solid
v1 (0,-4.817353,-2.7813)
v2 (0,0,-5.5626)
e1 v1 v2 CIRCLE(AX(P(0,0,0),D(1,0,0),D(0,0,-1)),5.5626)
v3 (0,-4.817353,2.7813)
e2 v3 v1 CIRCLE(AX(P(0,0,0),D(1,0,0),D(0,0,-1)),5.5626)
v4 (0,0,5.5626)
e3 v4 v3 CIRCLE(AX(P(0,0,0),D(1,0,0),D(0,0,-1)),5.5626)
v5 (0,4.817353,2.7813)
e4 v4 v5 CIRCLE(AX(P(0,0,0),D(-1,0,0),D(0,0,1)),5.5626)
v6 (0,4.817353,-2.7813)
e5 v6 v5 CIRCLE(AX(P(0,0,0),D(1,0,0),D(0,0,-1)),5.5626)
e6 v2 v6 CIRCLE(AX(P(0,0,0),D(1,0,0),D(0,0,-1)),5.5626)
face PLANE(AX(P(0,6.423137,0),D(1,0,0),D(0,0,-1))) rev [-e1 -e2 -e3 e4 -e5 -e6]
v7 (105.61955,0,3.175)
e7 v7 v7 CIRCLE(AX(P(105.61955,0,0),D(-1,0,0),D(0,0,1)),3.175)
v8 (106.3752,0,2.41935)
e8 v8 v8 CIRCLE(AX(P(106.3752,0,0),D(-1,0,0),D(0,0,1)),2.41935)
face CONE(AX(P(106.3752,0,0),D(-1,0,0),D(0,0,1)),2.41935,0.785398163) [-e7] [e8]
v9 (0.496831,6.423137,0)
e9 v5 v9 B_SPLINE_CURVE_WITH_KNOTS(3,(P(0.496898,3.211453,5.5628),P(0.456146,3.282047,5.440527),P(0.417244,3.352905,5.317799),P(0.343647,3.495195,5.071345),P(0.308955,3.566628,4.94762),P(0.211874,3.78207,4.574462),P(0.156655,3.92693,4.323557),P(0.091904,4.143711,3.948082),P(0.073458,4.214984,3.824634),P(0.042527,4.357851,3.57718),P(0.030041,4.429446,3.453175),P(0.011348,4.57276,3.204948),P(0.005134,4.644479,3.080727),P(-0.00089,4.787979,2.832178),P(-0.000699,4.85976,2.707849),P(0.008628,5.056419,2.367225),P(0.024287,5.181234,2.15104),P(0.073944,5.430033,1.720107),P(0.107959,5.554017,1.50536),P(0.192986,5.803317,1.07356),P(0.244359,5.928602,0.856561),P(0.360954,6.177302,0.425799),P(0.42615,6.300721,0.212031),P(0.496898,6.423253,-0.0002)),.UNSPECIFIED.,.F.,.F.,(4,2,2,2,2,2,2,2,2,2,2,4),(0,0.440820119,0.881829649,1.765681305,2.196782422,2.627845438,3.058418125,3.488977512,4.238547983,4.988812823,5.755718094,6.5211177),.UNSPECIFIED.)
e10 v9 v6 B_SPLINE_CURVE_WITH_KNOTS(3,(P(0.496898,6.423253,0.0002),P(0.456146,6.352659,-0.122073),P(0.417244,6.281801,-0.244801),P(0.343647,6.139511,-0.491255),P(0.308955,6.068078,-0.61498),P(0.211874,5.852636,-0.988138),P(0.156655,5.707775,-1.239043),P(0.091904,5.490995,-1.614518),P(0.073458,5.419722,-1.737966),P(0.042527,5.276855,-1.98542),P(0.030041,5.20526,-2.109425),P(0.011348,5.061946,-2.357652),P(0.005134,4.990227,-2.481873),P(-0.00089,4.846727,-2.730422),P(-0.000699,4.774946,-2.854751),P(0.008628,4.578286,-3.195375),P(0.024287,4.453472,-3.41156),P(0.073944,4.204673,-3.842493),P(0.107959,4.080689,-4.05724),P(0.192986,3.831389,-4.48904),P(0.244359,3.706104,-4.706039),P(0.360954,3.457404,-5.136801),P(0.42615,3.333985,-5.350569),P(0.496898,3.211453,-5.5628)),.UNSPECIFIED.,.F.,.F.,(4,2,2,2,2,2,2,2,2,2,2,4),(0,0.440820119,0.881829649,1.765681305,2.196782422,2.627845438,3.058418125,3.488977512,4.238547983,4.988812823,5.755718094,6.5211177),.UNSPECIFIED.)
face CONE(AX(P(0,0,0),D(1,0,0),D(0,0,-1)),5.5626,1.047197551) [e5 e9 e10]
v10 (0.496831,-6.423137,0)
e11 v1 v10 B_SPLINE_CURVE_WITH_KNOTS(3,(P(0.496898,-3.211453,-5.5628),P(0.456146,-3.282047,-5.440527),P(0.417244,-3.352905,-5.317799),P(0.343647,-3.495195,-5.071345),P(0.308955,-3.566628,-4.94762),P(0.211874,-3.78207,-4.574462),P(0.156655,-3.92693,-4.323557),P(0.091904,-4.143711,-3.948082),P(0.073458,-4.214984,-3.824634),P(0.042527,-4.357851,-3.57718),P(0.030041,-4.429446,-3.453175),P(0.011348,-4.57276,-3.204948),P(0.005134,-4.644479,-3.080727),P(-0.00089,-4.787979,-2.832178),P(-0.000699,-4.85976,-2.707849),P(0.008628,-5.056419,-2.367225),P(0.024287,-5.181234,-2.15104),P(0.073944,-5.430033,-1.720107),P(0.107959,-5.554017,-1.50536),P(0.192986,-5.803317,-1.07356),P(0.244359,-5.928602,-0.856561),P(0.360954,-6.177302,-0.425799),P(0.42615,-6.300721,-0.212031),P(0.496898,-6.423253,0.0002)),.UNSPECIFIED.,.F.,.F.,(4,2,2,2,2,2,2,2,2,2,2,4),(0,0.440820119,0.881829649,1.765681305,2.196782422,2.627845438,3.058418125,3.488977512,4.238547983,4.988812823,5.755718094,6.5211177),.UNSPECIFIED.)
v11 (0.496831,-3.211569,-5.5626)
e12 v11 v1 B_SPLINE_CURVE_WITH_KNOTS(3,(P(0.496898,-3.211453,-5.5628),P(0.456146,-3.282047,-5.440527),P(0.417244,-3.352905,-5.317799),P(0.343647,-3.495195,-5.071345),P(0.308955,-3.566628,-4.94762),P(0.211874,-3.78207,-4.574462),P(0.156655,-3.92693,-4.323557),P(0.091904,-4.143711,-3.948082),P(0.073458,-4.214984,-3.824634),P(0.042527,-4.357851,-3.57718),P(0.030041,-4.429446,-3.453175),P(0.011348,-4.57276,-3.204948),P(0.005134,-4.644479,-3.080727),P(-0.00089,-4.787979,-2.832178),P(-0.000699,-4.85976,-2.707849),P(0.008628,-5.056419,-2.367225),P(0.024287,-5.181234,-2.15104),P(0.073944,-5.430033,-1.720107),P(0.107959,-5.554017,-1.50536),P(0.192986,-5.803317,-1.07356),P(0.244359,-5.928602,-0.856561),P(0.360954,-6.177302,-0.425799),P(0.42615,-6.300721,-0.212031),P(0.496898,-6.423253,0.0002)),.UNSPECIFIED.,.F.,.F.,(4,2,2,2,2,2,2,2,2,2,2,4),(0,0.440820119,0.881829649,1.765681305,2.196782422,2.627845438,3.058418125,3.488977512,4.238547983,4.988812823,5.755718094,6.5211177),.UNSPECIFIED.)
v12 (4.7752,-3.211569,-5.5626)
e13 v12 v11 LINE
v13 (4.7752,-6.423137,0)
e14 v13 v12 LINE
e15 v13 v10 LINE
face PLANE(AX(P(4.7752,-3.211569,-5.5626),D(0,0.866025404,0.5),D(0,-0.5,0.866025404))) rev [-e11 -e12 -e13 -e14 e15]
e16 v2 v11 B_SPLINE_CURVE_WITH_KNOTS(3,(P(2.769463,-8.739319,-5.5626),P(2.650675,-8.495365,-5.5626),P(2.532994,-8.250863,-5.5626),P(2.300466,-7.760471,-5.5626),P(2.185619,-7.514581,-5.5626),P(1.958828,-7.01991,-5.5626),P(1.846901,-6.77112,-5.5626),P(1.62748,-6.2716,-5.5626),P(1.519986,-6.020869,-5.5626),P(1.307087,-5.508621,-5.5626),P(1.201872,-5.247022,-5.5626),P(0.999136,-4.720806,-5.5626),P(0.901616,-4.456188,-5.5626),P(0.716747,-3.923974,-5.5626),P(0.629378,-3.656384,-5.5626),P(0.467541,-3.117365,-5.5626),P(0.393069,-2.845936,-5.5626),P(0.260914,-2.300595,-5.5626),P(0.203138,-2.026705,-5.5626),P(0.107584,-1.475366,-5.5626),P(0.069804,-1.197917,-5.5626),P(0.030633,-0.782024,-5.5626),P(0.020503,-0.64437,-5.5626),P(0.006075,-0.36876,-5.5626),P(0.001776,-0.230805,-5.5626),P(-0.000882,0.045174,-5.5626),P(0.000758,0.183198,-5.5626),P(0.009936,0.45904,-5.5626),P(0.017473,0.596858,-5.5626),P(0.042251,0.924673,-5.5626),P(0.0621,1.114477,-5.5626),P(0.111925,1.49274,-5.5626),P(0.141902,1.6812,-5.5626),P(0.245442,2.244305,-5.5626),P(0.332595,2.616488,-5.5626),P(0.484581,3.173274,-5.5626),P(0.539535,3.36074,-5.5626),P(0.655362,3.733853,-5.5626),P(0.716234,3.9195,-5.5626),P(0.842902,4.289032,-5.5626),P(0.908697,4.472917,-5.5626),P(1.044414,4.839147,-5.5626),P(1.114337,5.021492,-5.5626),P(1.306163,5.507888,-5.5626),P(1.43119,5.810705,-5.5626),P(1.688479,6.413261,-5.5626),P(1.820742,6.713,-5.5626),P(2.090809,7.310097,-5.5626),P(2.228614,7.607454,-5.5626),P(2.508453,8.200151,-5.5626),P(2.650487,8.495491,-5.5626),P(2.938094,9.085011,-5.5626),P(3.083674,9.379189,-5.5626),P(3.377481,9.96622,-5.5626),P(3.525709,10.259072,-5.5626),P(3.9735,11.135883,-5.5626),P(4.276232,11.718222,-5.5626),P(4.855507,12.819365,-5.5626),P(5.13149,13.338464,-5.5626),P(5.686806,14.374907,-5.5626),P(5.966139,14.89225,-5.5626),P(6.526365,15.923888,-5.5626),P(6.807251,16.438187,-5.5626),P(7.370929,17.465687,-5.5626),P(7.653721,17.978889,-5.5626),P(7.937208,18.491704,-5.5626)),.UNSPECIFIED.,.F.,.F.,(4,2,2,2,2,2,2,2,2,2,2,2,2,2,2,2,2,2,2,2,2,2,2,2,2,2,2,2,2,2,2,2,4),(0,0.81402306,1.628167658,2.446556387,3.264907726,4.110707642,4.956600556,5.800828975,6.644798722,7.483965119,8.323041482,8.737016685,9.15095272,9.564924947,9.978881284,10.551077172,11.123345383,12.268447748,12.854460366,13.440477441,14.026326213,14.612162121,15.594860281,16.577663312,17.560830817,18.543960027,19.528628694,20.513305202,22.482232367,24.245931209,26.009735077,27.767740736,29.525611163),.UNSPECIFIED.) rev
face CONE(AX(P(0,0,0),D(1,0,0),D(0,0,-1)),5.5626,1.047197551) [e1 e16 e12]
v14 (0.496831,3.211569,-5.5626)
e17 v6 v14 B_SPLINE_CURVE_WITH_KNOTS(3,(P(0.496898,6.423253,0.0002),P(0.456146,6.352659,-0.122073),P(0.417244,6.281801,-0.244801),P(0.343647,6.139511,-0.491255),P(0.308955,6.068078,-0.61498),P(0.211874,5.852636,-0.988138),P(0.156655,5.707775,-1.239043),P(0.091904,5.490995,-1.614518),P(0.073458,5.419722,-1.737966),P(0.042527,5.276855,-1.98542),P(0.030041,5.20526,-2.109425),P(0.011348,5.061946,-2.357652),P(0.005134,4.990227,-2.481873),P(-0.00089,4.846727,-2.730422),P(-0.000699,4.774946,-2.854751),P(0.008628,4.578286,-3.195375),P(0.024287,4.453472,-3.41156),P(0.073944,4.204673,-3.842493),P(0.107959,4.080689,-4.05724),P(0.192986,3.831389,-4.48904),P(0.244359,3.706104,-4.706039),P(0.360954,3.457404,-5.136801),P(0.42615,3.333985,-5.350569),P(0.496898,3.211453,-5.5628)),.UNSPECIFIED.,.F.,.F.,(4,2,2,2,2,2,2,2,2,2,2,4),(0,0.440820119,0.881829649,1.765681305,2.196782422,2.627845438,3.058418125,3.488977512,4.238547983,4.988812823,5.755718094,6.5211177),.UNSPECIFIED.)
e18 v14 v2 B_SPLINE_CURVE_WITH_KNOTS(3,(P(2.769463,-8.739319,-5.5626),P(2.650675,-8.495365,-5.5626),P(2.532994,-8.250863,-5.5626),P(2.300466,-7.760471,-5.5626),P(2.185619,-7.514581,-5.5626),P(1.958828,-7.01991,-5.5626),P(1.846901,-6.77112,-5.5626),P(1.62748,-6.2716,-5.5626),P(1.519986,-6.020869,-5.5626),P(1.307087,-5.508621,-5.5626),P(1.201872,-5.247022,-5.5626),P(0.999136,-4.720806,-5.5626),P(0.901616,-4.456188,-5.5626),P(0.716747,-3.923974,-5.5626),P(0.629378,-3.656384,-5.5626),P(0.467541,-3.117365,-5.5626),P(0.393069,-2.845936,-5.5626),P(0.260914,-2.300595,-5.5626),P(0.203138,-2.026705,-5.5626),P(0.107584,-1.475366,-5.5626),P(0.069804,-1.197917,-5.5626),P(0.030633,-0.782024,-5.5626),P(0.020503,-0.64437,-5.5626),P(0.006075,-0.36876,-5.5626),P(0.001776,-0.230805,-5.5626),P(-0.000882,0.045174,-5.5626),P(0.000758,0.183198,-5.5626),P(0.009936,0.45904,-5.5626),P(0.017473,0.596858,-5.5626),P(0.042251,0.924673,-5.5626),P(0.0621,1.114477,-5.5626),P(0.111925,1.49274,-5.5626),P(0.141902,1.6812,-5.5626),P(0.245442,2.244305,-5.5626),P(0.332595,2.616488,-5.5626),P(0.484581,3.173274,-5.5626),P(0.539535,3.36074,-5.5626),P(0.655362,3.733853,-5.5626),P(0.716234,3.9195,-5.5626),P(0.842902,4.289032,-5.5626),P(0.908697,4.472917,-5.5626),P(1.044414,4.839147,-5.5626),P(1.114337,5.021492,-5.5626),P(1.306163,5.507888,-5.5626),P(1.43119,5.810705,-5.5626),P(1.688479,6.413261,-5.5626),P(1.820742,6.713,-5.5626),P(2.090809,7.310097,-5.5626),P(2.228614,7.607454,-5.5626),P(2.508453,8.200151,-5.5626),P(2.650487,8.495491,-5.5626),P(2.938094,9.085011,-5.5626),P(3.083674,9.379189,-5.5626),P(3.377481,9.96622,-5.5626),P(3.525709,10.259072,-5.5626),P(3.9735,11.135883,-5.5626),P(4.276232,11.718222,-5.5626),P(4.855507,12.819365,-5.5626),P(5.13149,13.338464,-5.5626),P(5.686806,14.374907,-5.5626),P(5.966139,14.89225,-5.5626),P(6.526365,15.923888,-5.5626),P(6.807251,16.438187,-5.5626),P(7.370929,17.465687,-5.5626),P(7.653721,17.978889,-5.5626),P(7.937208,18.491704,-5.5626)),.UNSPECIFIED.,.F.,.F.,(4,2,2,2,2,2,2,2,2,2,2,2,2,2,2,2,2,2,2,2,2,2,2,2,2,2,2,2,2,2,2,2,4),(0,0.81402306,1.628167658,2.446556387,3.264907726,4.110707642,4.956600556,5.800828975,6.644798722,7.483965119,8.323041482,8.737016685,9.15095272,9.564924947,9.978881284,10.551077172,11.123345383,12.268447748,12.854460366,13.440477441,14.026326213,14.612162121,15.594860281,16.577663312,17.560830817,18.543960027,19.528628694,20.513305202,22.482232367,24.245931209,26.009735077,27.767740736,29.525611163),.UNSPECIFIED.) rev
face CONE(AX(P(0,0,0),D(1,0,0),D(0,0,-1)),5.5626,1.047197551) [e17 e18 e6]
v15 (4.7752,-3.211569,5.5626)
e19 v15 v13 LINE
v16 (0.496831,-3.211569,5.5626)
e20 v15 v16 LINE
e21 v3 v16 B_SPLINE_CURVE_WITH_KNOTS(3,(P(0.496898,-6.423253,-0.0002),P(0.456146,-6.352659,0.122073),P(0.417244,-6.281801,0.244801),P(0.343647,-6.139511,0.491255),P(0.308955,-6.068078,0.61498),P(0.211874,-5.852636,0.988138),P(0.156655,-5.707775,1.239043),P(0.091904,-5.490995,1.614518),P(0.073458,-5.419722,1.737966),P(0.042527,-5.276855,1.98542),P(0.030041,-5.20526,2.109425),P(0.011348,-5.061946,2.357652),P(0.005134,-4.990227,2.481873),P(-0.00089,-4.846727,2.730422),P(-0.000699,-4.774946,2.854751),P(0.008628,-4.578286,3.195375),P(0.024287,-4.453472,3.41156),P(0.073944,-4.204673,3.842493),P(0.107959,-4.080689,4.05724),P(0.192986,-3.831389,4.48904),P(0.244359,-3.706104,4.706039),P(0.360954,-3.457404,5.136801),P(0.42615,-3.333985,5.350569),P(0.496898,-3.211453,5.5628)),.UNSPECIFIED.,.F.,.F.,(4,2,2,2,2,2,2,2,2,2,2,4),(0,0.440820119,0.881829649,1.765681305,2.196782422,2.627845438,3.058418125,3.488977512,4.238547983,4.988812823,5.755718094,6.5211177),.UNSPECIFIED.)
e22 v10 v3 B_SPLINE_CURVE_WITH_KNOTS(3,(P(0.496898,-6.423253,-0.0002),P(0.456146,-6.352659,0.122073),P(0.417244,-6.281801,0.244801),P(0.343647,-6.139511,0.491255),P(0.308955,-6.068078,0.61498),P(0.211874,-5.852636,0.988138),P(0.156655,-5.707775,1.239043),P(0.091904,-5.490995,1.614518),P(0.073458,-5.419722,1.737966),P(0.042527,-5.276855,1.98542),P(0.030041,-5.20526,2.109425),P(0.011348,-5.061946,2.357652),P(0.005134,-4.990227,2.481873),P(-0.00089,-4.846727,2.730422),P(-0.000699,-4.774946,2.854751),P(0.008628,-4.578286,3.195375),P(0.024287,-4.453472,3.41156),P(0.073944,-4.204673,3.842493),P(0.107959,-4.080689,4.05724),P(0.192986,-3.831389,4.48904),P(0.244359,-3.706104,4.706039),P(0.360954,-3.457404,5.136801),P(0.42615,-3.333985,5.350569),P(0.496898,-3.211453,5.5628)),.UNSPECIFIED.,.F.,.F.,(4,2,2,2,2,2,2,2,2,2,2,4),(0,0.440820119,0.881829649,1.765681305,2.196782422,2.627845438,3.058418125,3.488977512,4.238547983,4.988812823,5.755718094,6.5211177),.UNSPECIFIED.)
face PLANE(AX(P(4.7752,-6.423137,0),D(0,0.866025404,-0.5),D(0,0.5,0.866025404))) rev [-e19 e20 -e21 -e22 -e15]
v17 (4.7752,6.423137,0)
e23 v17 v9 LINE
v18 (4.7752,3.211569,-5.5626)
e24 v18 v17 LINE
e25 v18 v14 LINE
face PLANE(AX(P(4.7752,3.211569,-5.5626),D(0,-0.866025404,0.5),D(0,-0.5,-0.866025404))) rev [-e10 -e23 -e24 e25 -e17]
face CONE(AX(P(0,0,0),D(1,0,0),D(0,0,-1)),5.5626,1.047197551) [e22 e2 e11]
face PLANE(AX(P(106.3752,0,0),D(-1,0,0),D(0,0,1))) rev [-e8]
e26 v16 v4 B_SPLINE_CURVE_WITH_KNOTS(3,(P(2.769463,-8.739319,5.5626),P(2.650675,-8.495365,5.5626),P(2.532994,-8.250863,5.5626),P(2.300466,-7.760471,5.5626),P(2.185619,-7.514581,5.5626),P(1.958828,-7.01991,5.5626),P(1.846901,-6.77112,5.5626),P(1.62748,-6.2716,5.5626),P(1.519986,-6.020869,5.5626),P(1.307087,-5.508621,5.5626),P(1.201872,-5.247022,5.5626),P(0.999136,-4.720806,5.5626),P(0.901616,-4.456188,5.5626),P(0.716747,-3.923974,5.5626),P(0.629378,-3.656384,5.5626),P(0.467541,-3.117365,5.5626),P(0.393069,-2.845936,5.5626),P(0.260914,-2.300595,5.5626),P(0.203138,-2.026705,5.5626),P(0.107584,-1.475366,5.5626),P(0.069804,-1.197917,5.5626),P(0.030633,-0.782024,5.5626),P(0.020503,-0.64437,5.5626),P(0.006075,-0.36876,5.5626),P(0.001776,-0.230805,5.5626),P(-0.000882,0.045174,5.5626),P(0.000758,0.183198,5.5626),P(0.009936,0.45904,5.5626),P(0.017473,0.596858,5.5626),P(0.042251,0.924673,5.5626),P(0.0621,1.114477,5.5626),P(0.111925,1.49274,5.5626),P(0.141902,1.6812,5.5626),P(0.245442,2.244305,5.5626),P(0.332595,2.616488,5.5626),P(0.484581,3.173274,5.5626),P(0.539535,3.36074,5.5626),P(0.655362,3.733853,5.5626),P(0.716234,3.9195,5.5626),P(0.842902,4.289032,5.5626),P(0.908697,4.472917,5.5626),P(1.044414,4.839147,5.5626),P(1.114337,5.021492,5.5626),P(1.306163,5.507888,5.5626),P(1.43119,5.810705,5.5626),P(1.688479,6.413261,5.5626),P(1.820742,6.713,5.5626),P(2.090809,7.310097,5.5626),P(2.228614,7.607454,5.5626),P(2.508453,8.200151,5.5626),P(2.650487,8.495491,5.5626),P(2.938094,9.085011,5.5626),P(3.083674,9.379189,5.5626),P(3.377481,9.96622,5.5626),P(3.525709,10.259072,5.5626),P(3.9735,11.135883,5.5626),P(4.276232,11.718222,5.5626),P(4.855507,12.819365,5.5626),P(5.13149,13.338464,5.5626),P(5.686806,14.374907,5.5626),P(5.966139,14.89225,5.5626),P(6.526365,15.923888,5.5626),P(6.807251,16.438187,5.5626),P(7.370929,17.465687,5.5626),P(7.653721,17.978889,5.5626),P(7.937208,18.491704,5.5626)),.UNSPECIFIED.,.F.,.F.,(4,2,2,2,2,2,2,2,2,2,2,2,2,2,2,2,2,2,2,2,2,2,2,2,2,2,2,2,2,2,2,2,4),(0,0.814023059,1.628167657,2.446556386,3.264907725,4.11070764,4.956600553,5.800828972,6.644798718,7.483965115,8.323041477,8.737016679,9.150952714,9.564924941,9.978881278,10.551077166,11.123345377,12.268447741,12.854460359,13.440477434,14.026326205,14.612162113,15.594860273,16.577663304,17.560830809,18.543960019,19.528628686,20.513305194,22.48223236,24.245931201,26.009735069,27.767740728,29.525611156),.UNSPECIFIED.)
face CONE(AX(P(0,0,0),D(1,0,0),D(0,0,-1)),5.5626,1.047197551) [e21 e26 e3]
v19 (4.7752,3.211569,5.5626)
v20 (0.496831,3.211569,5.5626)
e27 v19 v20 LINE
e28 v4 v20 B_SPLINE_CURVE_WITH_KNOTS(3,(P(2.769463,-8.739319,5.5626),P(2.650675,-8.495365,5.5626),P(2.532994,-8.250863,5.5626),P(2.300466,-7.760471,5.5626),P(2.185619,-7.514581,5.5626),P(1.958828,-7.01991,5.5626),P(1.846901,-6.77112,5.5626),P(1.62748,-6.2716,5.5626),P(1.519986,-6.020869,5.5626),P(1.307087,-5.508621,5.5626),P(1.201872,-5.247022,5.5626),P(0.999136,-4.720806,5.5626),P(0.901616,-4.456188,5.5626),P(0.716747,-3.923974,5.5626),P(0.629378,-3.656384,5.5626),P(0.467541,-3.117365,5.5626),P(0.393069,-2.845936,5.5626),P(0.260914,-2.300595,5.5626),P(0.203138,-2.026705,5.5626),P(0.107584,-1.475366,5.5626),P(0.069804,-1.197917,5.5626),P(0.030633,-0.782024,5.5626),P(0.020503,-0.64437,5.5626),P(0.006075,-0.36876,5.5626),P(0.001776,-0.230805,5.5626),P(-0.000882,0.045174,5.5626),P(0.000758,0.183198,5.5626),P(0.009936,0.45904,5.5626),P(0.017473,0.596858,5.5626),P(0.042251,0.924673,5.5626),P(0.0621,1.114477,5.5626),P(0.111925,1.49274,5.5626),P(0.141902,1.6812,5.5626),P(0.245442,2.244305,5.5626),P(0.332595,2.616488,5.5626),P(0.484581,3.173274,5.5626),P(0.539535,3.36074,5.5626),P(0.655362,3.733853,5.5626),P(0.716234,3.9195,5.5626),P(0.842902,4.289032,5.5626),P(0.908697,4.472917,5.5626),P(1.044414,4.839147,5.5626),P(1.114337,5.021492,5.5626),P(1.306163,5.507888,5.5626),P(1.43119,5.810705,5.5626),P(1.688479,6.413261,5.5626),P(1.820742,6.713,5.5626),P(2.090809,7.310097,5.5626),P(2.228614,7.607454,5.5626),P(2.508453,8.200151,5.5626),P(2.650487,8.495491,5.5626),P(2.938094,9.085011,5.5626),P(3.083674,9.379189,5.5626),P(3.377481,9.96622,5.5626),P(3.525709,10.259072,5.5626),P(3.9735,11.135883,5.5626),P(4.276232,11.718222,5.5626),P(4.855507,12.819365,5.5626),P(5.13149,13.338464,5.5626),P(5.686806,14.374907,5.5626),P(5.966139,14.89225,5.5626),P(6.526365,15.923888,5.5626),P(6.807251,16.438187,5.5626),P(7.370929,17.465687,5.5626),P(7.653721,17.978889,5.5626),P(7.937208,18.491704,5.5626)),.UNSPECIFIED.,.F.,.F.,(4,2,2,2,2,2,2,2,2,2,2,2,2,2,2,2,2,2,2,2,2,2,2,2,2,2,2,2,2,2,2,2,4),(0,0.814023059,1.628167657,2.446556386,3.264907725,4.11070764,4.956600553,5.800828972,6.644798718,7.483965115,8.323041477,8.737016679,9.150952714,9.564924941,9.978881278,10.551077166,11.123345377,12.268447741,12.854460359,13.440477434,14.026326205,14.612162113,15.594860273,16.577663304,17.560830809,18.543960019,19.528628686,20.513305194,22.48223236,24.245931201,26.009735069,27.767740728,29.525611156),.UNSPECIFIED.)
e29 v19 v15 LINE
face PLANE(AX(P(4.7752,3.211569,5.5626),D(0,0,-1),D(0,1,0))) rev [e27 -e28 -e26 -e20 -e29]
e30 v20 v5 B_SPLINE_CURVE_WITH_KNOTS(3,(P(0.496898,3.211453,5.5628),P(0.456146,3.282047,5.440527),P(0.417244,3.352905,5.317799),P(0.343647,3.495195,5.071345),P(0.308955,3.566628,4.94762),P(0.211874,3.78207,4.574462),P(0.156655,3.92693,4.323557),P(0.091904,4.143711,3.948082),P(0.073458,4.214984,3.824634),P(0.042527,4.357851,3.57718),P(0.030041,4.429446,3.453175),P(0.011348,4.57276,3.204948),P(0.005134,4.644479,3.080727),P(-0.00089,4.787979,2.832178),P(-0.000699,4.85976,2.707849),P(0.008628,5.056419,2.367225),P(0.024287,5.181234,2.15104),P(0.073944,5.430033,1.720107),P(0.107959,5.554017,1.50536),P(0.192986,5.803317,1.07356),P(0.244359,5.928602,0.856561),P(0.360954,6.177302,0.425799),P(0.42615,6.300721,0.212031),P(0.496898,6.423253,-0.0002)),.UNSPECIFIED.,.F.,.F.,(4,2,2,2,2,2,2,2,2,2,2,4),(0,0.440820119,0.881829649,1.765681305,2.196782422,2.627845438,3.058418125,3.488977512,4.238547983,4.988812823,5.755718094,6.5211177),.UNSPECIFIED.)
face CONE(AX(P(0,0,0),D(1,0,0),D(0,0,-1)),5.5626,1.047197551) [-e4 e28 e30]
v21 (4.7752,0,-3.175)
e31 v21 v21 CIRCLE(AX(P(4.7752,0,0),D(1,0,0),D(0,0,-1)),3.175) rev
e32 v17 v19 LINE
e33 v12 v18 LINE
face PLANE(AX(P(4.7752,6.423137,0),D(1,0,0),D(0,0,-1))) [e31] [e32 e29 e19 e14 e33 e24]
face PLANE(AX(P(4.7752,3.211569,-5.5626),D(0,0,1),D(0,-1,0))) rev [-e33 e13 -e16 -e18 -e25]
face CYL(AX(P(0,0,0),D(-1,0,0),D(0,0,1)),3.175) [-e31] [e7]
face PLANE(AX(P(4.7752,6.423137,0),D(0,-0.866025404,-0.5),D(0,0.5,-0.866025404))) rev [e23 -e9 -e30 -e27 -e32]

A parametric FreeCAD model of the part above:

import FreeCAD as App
import Part
import Sketcher

V = App.Vector
Q = App.Units.Quantity


def add_polygon(sketch, points):
    """Adds a closed chain of lines whose ends are joined by coincident constraints."""
    first, n = sketch.GeometryCount, len(points)
    for a, b in zip(points, points[1:] + points[:1]):
        sketch.addGeometry(Part.LineSegment(App.Vector(*a, 0), App.Vector(*b, 0)), False)
    for i in range(n):
        sketch.addConstraint(Sketcher.Constraint("Coincident", first + i, 2, first + (i + 1) % n, 1))

doc = App.newDocument("Part")
body = doc.addObject("PartDesign::Body", "Body")

# Sketch on YZ plane
sketch1 = body.newObject("Sketcher::SketchObject", "Sketch")
sketch1.AttachmentSupport = (doc.getObject("YZ_Plane"), [""])
sketch1.MapMode = "FlatFace"
add_polygon(sketch1, [(-3, -6), (3, -6), (6, 0), (3, 6), (-3, 6), (-6, 0)])  # lines 0-5
sketch1.addConstraint([
    Sketcher.Constraint("Horizontal", 0),
    Sketcher.Constraint("Horizontal", 3),
    Sketcher.Constraint("Symmetric", 0, 2, 3, 2, -1, 1),
    Sketcher.Constraint("Symmetric", 1, 2, 4, 2, -1, 1),
    Sketcher.Constraint("PointOnObject", 1, 2, -1),
    Sketcher.Constraint("Parallel", 2, 5),
    Sketcher.Constraint("Vertical", 0, 2, 2, 2),
    Sketcher.Constraint("Angle", 1, Q("60 deg")),
    Sketcher.Constraint("DistanceY", 0, 2, -1, 1, Q("0.219 in")),
    Sketcher.Constraint("DistanceX", 0, 1, 0, 2, 6.423137),
])
pad1 = body.newObject("PartDesign::Pad", "Pad")
pad1.Profile = sketch1
pad1.Length = Q("0.188 in")

# Sketch on XY plane
sketch2 = body.newObject("Sketcher::SketchObject", "Sketch001")
sketch2.AttachmentSupport = (doc.getObject("XY_Plane"), [""])
sketch2.MapMode = "FlatFace"
add_polygon(sketch2, [(0, 0), (106.4, 0), (106.4, 2.4), (105.6, 3.2), (0, 3.2)])  # lines 0-4
sketch2.addConstraint([
    Sketcher.Constraint("Horizontal", 0),
    Sketcher.Constraint("Vertical", 1),
    Sketcher.Constraint("Horizontal", 3),
    Sketcher.Constraint("Vertical", 4),
    Sketcher.Constraint("Coincident", 4, 2, -1, 1),
    Sketcher.Constraint("Angle", 2, Q("135 deg")),
    Sketcher.Constraint("DistanceX", 0, 1, 0, 2, Q("4.188 in")),
    Sketcher.Constraint("DistanceY", 4, 2, 4, 1, Q("0.125 in")),
    Sketcher.Constraint("DistanceX", 3, 2, 3, 1, 105.61955),
])
revolution = body.newObject("PartDesign::Revolution", "Revolution")
revolution.Profile = sketch2
revolution.ReferenceAxis = (sketch2, ["H_Axis"])
revolution.Angle = 360

# Sketch on XY plane
sketch3 = body.newObject("Sketcher::SketchObject", "Sketch002")
sketch3.AttachmentSupport = (doc.getObject("XY_Plane"), [""])
sketch3.MapMode = "FlatFace"
add_polygon(sketch3, [(0, 6), (4, 13), (4, 19), (-13, 19), (-13, 6)])  # lines 0-4
sketch3.addConstraint([
    Sketcher.Constraint("Vertical", 1),
    Sketcher.Constraint("Horizontal", 2),
    Sketcher.Constraint("Vertical", 3),
    Sketcher.Constraint("Horizontal", 4),
    Sketcher.Constraint("PointOnObject", 4, 2, -2),
    Sketcher.Constraint("DistanceX", 4, 1, 4, 2, Q("0.5 in")),
    Sketcher.Constraint("Angle", 0, Q("60 deg")),
    Sketcher.Constraint("DistanceY", 1, 1, 1, 2, Q("0.25 in")),
    Sketcher.Constraint("DistanceY", -1, 1, 3, 2, Q("0.219 in")),
    Sketcher.Constraint("Distance", 0, 8.326011),
])
groove = body.newObject("PartDesign::Groove", "Groove")
groove.Profile = sketch3
groove.ReferenceAxis = (sketch3, ["H_Axis"])
groove.Angle = 360

doc.recompute()
